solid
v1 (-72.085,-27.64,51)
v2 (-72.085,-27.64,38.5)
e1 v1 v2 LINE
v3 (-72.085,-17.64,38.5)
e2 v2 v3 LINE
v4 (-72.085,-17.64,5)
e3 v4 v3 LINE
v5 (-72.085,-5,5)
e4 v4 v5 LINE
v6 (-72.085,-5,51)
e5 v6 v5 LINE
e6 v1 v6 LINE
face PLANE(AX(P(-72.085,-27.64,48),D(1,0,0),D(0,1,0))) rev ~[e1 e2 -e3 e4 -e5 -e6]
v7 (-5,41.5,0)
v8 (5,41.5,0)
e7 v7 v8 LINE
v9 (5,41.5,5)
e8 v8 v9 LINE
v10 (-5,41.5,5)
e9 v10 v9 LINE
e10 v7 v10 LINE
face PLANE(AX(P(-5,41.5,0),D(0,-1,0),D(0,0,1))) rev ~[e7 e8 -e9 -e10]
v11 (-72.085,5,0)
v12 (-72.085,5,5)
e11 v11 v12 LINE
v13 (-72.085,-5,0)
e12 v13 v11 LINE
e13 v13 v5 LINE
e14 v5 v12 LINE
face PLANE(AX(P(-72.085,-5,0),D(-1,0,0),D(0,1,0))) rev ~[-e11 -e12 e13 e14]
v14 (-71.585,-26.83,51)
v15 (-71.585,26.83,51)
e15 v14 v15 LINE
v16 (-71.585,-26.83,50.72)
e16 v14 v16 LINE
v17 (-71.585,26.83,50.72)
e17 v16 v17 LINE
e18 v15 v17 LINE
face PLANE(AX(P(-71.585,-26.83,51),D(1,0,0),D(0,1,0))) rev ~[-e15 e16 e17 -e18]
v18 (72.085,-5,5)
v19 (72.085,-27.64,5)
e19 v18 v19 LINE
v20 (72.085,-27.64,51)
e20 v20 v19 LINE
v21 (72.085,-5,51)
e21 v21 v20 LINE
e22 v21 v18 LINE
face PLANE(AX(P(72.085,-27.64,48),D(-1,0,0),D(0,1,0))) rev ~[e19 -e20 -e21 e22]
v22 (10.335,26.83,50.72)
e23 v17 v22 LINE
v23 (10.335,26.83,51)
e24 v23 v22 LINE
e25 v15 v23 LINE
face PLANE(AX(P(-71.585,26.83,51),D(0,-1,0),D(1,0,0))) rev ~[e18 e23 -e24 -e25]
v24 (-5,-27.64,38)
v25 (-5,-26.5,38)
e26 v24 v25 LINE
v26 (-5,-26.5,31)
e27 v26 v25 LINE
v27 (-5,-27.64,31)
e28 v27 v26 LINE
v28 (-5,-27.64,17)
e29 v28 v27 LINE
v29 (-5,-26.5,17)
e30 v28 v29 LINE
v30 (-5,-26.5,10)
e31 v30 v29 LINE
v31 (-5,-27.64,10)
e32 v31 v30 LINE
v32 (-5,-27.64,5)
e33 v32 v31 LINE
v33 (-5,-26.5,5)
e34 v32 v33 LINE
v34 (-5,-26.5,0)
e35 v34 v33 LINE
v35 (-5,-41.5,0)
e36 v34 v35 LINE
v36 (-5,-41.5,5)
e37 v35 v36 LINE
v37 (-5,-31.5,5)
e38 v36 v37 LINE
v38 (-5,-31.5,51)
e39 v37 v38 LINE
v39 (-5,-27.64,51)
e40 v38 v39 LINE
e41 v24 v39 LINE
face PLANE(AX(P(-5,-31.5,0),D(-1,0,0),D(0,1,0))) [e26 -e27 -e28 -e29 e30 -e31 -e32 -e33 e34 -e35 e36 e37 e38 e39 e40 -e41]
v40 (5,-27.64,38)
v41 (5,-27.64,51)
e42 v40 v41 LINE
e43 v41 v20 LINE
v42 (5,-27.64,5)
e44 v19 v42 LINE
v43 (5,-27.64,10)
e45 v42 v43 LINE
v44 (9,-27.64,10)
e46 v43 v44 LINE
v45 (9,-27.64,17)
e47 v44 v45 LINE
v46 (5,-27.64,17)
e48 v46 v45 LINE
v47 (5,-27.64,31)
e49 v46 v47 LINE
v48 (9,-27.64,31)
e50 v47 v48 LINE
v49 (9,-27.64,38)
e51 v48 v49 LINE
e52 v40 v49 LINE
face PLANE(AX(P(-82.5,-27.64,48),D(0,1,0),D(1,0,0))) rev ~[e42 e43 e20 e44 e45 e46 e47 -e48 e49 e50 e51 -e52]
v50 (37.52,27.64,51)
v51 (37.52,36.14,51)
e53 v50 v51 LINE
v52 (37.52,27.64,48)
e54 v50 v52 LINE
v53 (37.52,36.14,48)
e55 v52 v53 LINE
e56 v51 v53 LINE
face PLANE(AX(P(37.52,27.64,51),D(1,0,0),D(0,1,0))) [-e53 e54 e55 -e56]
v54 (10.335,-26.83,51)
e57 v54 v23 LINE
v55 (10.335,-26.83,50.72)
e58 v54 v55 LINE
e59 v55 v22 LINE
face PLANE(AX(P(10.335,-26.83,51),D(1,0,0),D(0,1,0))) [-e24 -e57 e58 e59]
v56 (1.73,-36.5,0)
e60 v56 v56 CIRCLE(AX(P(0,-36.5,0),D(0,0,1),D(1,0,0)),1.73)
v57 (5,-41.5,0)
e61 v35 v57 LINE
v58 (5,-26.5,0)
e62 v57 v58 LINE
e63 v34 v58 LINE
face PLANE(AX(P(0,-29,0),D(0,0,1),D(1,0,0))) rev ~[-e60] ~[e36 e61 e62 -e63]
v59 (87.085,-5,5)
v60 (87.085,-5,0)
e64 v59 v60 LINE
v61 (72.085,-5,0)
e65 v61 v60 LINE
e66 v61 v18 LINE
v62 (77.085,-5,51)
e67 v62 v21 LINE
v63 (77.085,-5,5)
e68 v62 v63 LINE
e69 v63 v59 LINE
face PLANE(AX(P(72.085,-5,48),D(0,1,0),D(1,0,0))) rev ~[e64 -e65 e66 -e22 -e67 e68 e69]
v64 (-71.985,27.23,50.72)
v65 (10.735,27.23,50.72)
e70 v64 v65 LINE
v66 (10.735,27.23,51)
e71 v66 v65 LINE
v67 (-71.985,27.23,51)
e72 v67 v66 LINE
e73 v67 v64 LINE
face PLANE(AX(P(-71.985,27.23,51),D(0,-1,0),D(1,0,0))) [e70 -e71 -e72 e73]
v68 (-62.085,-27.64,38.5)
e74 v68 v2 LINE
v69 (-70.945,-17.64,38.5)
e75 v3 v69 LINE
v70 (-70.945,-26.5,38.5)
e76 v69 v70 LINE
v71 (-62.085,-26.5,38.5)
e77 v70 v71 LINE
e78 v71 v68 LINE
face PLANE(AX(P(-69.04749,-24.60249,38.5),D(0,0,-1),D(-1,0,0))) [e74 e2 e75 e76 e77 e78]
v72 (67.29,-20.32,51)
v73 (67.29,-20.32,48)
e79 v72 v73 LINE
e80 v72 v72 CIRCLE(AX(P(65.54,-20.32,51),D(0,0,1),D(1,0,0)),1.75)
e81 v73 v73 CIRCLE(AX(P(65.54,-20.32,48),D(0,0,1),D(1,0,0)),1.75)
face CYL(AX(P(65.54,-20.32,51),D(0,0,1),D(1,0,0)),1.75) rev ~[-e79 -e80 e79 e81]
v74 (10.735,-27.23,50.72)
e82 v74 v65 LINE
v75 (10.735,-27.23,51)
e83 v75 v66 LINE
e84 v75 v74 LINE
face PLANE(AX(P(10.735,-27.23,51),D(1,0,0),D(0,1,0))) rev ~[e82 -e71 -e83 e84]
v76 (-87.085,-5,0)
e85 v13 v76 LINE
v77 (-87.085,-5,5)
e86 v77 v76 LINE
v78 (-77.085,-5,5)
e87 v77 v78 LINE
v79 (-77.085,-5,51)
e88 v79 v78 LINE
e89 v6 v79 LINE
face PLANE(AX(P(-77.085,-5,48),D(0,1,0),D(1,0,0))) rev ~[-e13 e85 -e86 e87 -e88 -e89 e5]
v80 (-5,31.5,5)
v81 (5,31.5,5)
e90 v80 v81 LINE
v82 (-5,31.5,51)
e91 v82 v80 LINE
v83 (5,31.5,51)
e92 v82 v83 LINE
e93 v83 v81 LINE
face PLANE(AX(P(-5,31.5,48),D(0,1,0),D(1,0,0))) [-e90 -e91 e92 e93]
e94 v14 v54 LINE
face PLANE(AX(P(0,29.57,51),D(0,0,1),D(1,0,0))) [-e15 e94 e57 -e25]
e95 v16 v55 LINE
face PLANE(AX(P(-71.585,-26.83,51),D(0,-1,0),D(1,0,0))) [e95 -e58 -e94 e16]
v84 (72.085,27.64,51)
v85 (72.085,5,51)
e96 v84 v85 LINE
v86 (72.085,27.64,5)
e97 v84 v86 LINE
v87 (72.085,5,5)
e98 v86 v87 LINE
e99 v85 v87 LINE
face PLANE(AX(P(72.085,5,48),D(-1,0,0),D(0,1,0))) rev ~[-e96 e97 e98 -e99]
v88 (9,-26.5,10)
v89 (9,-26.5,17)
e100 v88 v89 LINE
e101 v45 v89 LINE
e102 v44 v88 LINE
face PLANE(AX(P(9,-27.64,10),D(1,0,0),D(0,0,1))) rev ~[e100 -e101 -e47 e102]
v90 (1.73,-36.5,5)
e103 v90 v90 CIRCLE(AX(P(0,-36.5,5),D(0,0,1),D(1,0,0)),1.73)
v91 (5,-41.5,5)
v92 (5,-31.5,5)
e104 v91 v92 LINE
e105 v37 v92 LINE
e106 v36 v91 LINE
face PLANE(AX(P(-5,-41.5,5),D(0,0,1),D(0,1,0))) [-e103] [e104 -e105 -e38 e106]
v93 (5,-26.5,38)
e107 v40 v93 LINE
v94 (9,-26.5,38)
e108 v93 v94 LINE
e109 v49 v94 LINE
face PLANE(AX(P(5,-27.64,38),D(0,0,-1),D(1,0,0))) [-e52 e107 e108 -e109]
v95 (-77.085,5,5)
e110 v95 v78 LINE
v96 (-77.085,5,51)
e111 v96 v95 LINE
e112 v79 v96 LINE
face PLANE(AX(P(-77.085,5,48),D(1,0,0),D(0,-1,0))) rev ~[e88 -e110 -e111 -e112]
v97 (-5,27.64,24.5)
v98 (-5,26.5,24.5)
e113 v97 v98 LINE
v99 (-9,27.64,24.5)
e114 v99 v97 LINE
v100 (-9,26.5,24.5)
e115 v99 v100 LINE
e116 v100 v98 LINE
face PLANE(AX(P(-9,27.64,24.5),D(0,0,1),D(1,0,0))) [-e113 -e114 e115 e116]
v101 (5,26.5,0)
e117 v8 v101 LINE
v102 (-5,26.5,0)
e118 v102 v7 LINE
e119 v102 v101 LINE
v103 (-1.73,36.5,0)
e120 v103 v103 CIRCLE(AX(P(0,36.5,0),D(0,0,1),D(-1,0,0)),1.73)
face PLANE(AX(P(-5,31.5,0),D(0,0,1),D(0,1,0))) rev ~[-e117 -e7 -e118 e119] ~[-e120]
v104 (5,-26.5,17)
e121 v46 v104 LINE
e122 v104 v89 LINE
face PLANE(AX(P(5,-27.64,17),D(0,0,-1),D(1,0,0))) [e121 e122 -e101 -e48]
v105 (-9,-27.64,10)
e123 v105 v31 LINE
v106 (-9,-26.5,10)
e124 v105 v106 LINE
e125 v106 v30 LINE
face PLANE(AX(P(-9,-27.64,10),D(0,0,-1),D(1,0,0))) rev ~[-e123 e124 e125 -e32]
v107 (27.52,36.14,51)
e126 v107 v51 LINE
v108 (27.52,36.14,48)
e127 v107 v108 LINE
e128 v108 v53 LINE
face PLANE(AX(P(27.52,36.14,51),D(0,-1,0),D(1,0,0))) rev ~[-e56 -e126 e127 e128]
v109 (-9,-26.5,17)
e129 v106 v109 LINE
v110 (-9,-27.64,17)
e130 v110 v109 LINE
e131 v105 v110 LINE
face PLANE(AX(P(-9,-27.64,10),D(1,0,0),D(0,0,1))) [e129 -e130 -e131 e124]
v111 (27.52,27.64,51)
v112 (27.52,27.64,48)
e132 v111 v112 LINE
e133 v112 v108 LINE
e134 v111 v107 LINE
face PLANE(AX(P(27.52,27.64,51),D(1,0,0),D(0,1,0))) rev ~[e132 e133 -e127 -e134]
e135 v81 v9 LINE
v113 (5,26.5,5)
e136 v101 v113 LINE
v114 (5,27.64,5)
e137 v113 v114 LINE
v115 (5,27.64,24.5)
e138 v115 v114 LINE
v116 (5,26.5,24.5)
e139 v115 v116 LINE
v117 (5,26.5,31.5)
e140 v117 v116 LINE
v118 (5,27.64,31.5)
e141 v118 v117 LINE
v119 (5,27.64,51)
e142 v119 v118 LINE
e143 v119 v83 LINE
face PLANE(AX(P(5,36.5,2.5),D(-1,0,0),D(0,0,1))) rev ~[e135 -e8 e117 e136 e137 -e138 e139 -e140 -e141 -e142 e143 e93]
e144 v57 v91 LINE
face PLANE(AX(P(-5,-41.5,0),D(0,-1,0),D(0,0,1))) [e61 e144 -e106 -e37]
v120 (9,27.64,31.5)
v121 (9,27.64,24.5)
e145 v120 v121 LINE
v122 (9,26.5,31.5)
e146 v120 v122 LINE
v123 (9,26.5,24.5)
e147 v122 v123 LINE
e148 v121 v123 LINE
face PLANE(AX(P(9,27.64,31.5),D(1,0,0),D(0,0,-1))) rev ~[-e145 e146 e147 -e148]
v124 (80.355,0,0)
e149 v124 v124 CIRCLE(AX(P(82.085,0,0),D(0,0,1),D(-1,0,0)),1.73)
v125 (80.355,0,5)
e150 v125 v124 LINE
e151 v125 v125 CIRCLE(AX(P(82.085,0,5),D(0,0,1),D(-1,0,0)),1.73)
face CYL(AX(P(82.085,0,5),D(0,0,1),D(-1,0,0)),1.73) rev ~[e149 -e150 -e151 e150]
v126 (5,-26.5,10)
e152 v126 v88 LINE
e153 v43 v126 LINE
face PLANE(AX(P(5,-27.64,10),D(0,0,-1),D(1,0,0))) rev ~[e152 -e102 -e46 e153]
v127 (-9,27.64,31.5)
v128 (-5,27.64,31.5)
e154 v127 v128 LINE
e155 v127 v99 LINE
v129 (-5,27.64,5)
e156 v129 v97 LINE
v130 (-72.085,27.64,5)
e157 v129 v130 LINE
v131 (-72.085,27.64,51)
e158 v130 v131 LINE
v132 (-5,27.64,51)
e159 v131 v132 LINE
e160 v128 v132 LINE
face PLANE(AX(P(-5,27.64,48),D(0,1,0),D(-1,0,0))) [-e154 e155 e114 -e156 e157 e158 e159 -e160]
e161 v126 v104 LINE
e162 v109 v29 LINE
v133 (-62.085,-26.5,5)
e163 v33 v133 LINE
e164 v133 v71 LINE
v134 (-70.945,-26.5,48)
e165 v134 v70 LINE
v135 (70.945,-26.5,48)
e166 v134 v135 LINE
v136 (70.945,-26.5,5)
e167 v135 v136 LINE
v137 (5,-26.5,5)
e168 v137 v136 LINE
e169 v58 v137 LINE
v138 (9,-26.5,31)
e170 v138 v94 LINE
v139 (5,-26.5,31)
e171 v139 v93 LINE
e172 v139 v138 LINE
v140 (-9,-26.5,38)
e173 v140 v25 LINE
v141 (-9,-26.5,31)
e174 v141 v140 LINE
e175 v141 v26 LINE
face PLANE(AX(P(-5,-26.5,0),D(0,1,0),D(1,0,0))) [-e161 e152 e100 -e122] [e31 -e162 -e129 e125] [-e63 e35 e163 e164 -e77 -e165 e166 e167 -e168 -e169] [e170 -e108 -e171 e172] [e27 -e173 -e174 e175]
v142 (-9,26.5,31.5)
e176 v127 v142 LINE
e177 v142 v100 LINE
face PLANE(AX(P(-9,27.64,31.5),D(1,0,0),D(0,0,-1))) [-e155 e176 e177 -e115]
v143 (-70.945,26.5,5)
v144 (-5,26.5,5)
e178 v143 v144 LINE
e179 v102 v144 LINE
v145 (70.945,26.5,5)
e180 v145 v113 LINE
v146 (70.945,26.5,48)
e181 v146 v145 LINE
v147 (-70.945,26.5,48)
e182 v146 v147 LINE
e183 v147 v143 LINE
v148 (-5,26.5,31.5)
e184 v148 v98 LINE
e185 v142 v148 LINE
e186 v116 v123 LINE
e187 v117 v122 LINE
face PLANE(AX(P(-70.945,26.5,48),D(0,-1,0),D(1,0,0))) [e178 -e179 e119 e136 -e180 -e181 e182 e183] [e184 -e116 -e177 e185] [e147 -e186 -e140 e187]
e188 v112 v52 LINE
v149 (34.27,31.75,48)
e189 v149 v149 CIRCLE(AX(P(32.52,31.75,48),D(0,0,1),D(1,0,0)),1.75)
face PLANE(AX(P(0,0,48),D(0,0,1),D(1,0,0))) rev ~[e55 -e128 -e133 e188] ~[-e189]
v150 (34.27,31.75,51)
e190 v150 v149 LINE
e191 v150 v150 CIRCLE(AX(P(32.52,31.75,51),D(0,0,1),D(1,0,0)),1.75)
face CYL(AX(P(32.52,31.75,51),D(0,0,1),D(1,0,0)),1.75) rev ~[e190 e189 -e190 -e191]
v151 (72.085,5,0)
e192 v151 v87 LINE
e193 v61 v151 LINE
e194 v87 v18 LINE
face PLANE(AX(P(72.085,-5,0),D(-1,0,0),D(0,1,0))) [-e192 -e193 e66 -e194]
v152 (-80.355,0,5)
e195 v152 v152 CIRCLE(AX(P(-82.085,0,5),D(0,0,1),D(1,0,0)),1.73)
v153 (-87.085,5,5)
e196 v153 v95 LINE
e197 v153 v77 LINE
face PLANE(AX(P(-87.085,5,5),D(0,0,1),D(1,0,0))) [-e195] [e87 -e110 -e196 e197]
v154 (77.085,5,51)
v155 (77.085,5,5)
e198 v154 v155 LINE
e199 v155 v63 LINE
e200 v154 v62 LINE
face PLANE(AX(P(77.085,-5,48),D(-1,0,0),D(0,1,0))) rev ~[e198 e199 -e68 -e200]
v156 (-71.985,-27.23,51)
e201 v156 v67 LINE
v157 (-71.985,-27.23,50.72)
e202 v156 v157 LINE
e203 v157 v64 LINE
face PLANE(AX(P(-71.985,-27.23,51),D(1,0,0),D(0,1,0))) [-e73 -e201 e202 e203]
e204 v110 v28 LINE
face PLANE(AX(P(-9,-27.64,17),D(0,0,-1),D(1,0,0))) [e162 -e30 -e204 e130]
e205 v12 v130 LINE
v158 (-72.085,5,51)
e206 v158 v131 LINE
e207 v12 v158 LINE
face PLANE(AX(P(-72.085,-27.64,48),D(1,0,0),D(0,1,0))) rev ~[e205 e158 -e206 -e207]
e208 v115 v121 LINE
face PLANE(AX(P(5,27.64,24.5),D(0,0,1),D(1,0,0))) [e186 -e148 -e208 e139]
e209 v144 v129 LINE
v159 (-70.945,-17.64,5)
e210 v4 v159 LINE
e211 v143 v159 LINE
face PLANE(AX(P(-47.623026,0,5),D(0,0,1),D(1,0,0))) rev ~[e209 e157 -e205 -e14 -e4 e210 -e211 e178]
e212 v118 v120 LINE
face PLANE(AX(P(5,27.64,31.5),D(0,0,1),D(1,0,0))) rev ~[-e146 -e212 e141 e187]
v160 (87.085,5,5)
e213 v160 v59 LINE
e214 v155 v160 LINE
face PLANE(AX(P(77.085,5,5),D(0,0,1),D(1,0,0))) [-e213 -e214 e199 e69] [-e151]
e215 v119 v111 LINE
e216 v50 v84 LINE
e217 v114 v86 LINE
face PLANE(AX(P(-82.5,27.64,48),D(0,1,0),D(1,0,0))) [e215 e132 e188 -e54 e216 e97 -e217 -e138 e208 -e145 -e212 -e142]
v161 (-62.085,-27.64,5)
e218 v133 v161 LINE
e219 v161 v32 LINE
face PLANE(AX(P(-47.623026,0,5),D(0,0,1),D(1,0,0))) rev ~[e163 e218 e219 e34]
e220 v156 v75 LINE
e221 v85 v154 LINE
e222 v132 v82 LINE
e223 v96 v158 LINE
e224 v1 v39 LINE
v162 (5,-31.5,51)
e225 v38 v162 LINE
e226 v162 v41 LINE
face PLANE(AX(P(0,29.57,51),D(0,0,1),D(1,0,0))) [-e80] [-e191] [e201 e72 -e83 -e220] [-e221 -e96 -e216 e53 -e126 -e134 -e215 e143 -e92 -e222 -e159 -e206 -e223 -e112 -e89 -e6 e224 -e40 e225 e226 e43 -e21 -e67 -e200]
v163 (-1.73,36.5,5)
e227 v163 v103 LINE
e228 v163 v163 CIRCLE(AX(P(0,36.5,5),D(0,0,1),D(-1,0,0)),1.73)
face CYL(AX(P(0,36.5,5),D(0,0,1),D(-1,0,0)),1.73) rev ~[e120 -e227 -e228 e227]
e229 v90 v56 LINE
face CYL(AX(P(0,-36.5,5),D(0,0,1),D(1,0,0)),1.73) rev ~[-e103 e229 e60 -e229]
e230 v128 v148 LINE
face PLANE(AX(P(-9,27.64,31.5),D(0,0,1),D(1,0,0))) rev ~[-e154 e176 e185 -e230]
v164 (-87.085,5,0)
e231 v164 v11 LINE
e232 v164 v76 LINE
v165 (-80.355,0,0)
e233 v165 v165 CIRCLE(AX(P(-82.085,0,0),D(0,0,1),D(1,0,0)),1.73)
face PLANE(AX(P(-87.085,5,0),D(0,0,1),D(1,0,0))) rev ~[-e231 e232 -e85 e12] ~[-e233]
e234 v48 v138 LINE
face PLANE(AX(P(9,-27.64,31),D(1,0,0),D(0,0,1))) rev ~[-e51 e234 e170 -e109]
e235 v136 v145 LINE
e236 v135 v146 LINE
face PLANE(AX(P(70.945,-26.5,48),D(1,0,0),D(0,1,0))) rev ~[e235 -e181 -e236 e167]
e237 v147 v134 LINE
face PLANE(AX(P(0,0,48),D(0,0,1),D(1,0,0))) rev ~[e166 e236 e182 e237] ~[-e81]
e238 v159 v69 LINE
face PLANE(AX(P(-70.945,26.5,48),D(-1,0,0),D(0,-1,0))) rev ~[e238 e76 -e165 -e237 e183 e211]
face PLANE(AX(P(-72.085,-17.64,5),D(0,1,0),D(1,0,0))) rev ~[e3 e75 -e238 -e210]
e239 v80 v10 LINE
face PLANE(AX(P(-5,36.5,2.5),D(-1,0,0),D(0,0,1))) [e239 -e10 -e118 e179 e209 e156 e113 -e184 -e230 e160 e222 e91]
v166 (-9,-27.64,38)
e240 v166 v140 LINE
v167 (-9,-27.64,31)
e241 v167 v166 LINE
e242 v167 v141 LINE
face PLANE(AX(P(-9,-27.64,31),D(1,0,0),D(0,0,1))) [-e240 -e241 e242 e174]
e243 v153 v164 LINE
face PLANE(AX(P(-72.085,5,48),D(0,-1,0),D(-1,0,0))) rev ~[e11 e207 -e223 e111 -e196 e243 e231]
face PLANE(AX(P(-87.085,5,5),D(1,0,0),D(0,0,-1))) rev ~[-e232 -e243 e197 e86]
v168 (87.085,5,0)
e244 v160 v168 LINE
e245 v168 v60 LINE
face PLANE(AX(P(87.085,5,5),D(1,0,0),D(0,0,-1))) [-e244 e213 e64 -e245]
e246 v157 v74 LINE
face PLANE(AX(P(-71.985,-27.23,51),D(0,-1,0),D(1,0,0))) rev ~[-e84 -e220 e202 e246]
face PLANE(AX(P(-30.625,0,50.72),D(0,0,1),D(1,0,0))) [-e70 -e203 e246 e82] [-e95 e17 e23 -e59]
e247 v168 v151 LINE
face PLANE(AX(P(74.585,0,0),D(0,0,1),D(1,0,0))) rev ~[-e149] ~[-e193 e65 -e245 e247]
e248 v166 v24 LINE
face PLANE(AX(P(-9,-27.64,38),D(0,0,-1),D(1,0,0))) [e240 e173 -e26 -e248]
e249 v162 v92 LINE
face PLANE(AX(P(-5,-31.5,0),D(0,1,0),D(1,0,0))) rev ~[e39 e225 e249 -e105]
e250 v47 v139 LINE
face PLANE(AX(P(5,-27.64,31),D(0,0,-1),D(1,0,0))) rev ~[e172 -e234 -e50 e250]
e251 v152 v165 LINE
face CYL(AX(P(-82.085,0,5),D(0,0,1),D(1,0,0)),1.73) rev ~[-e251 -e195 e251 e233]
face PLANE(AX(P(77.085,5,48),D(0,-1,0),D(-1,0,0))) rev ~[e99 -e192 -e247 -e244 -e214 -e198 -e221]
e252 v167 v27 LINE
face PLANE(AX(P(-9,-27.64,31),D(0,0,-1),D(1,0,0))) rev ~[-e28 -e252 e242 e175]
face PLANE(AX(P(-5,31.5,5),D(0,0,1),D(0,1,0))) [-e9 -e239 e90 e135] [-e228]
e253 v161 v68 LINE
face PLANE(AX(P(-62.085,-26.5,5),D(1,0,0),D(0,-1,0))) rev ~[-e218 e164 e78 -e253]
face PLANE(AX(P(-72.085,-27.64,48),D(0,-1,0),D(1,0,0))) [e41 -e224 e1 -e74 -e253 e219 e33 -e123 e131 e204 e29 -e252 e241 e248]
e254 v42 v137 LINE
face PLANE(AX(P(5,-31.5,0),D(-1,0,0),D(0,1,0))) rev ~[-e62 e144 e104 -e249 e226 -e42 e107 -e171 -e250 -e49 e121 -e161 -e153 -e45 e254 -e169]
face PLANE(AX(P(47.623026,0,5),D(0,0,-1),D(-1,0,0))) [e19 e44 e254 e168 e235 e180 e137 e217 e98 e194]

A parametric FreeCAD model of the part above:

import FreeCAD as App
import Part
import Sketcher

doc = App.newDocument("Part")
body = doc.addObject("PartDesign::Body", "Body")

# Sketch on XY plane
sketch1 = body.newObject("Sketcher::SketchObject", "Sketch")
sketch1.AttachmentSupport = (doc.getObject("XY_Plane"), [""])
sketch1.MapMode = "FlatFace"
sketch1.addGeometry([
    Part.LineSegment(App.Vector(-77, 5, 0), App.Vector(-77, -5, 0)),
    Part.LineSegment(App.Vector(-77, -5, 0), App.Vector(-72, -5, 0)),
    Part.LineSegment(App.Vector(-72, -5, 0), App.Vector(-72, 5, 0)),
    Part.LineSegment(App.Vector(-72, 5, 0), App.Vector(-77, 5, 0)),
], False)
sketch1.addConstraint([
    Sketcher.Constraint("Coincident", 0, 2, 1, 1),
    Sketcher.Constraint("Coincident", 1, 2, 2, 1),
    Sketcher.Constraint("Coincident", 2, 2, 3, 1),
    Sketcher.Constraint("Coincident", 3, 2, 0, 1),
    Sketcher.Constraint("Vertical", 0),
    Sketcher.Constraint("Horizontal", 1),
    Sketcher.Constraint("Vertical", 2),
    Sketcher.Constraint("Horizontal", 3),
    Sketcher.Constraint("DistanceX", 1, 1, 1, 2, 5.0),
    Sketcher.Constraint("DistanceY", 0, 2, 0, 1, 10.0),
    Sketcher.Constraint("DistanceY", 0, 2, -1, 1, 5.0),
    Sketcher.Constraint("DistanceX", 0, 2, -1, 1, 77.085),
])
pad1 = body.newObject("PartDesign::Pad", "Pad")
pad1.Profile = sketch1
pad1.Length = 48
body2 = doc.addObject("PartDesign::Body", "Body001")

# Sketch on XY plane
sketch2 = body2.newObject("Sketcher::SketchObject", "Sketch001")
sketch2.AttachmentSupport = (doc.getObject("XY_Plane001"), [""])
sketch2.MapMode = "FlatFace"
sketch2.addGeometry([
    Part.LineSegment(App.Vector(-5, 32, 0), App.Vector(-5, 26, 0)),
    Part.LineSegment(App.Vector(-5, 26, 0), App.Vector(5, 26, 0)),
    Part.LineSegment(App.Vector(5, 26, 0), App.Vector(5, 32, 0)),
    Part.LineSegment(App.Vector(5, 32, 0), App.Vector(-5, 32, 0)),
], False)
sketch2.addConstraint([
    Sketcher.Constraint("Coincident", 0, 2, 1, 1),
    Sketcher.Constraint("Coincident", 1, 2, 2, 1),
    Sketcher.Constraint("Coincident", 2, 2, 3, 1),
    Sketcher.Constraint("Coincident", 3, 2, 0, 1),
    Sketcher.Constraint("Vertical", 0),
    Sketcher.Constraint("Horizontal", 1),
    Sketcher.Constraint("Vertical", 2),
    Sketcher.Constraint("Horizontal", 3),
    Sketcher.Constraint("DistanceX", 1, 1, 1, 2, 10.0),
    Sketcher.Constraint("DistanceY", 0, 2, 0, 1, 5.0),
    Sketcher.Constraint("DistanceX", 0, 2, -1, 1, 5.0),
    Sketcher.Constraint("DistanceY", -1, 1, 0, 2, 26.5),
])
pad2 = body2.newObject("PartDesign::Pad", "Pad001")
pad2.Profile = sketch2
pad2.Length = 48
body3 = doc.addObject("PartDesign::Body", "Body002")

# Sketch on XY plane
sketch3 = body3.newObject("Sketcher::SketchObject", "Sketch002")
sketch3.AttachmentSupport = (doc.getObject("XY_Plane002"), [""])
sketch3.MapMode = "FlatFace"
sketch3.addGeometry([
    Part.LineSegment(App.Vector(72, 5, 0), App.Vector(72, -5, 0)),
    Part.LineSegment(App.Vector(72, -5, 0), App.Vector(77, -5, 0)),
    Part.LineSegment(App.Vector(77, -5, 0), App.Vector(77, 5, 0)),
    Part.LineSegment(App.Vector(77, 5, 0), App.Vector(72, 5, 0)),
], False)
sketch3.addConstraint([
    Sketcher.Constraint("Coincident", 0, 2, 1, 1),
    Sketcher.Constraint("Coincident", 1, 2, 2, 1),
    Sketcher.Constraint("Coincident", 2, 2, 3, 1),
    Sketcher.Constraint("Coincident", 3, 2, 0, 1),
    Sketcher.Constraint("Vertical", 0),
    Sketcher.Constraint("Horizontal", 1),
    Sketcher.Constraint("Vertical", 2),
    Sketcher.Constraint("Horizontal", 3),
    Sketcher.Constraint("DistanceX", 1, 1, 1, 2, 5.0),
    Sketcher.Constraint("DistanceY", 0, 2, 0, 1, 10.0),
    Sketcher.Constraint("DistanceY", 0, 2, -1, 1, 5.0),
    Sketcher.Constraint("DistanceX", -1, 1, 0, 2, 72.085),
])
pad3 = body3.newObject("PartDesign::Pad", "Pad002")
pad3.Profile = sketch3
pad3.Length = 48
body4 = doc.addObject("PartDesign::Body", "Body003")

# Sketch on XY plane
sketch4 = body4.newObject("Sketcher::SketchObject", "Sketch003")
sketch4.AttachmentSupport = (doc.getObject("XY_Plane003"), [""])
sketch4.MapMode = "FlatFace"
sketch4.addGeometry([
    Part.LineSegment(App.Vector(-5, -26, 0), App.Vector(-5, -32, 0)),
    Part.LineSegment(App.Vector(-5, -32, 0), App.Vector(5, -32, 0)),
    Part.LineSegment(App.Vector(5, -32, 0), App.Vector(5, -26, 0)),
    Part.LineSegment(App.Vector(5, -26, 0), App.Vector(-5, -26, 0)),
], False)
sketch4.addConstraint([
    Sketcher.Constraint("Coincident", 0, 2, 1, 1),
    Sketcher.Constraint("Coincident", 1, 2, 2, 1),
    Sketcher.Constraint("Coincident", 2, 2, 3, 1),
    Sketcher.Constraint("Coincident", 3, 2, 0, 1),
    Sketcher.Constraint("Vertical", 0),
    Sketcher.Constraint("Horizontal", 1),
    Sketcher.Constraint("Vertical", 2),
    Sketcher.Constraint("Horizontal", 3),
    Sketcher.Constraint("DistanceX", 1, 1, 1, 2, 10.0),
    Sketcher.Constraint("DistanceY", 0, 2, 0, 1, 5.0),
    Sketcher.Constraint("DistanceX", 0, 2, -1, 1, 5.0),
    Sketcher.Constraint("DistanceY", 0, 2, -1, 1, 31.5),
])
pad4 = body4.newObject("PartDesign::Pad", "Pad003")
pad4.Profile = sketch4
pad4.Length = 48
body.AllowCompound = True
doc.recompute()

boolean = body.newObject("PartDesign::Boolean", "Boolean")
boolean.Type = "Fuse"
boolean.addObjects([body2])
doc.recompute()

boolean2 = body.newObject("PartDesign::Boolean", "Boolean001")
boolean2.Type = "Fuse"
boolean2.addObjects([body3])
doc.recompute()

boolean3 = body.newObject("PartDesign::Boolean", "Boolean002")
boolean3.Type = "Fuse"
boolean3.addObjects([body4])

# Sketch on XY plane
sketch5 = body.newObject("Sketcher::SketchObject", "Sketch004")
sketch5.AttachmentSupport = (doc.getObject("XY_Plane"), [""])
sketch5.MapMode = "FlatFace"
sketch5.AttachmentOffset = App.Placement(App.Vector(0, 0, 48), App.Rotation())
sketch5.addGeometry([
    Part.LineSegment(App.Vector(-82, 28, 0), App.Vector(-82, -28, 0)),
    Part.LineSegment(App.Vector(-82, -28, 0), App.Vector(82, -28, 0)),
    Part.LineSegment(App.Vector(82, -28, 0), App.Vector(82, 28, 0)),
    Part.LineSegment(App.Vector(82, 28, 0), App.Vector(-82, 28, 0)),
], False)
sketch5.addConstraint([
    Sketcher.Constraint("Coincident", 0, 2, 1, 1),
    Sketcher.Constraint("Coincident", 1, 2, 2, 1),
    Sketcher.Constraint("Coincident", 2, 2, 3, 1),
    Sketcher.Constraint("Coincident", 3, 2, 0, 1),
    Sketcher.Constraint("Vertical", 0),
    Sketcher.Constraint("Horizontal", 1),
    Sketcher.Constraint("Vertical", 2),
    Sketcher.Constraint("Horizontal", 3),
    Sketcher.Constraint("Symmetric", 0, 2, 2, 2, -1, 1),
    Sketcher.Constraint("DistanceX", 1, 1, 1, 2, 165.0),
    Sketcher.Constraint("DistanceY", 0, 2, 0, 1, 55.28),
])
pad5 = body.newObject("PartDesign::Pad", "Pad004")
pad5.Profile = sketch5
pad5.Length = 3

# Sketch on XY plane
sketch6 = body.newObject("Sketcher::SketchObject", "Sketch005")
sketch6.AttachmentSupport = (doc.getObject("XY_Plane"), [""])
sketch6.MapMode = "FlatFace"
sketch6.AttachmentOffset = App.Placement(App.Vector(0, 0, 48), App.Rotation())
sketch6.addGeometry([
    Part.LineSegment(App.Vector(-5, 31.5, 0), App.Vector(-5, 27.6, 0)),  # 0
    Part.LineSegment(App.Vector(-5, 27.6, 0), App.Vector(5, 27.6, 0)),  # 1
    Part.LineSegment(App.Vector(5, 27.6, 0), App.Vector(5, 31.5, 0)),  # 2
    Part.LineSegment(App.Vector(5, 31.5, 0), App.Vector(-5, 31.5, 0)),  # 3
    Part.LineSegment(App.Vector(-5, -27.6, 0), App.Vector(-5, -31.5, 0)),  # 4
    Part.LineSegment(App.Vector(-5, -31.5, 0), App.Vector(5, -31.5, 0)),  # 5
    Part.LineSegment(App.Vector(5, -31.5, 0), App.Vector(5, -27.6, 0)),  # 6
    Part.LineSegment(App.Vector(5, -27.6, 0), App.Vector(-5, -27.6, 0)),  # 7
], False)
sketch6.addConstraint([
    Sketcher.Constraint("Coincident", 0, 2, 1, 1),
    Sketcher.Constraint("Coincident", 1, 2, 2, 1),
    Sketcher.Constraint("Coincident", 2, 2, 3, 1),
    Sketcher.Constraint("Coincident", 3, 2, 0, 1),
    Sketcher.Constraint("Coincident", 4, 2, 5, 1),
    Sketcher.Constraint("Coincident", 5, 2, 6, 1),
    Sketcher.Constraint("Coincident", 6, 2, 7, 1),
    Sketcher.Constraint("Coincident", 7, 2, 4, 1),
    Sketcher.Constraint("Vertical", 0),
    Sketcher.Constraint("Horizontal", 1),
    Sketcher.Constraint("Vertical", 2),
    Sketcher.Constraint("Horizontal", 3),
    Sketcher.Constraint("Vertical", 4),
    Sketcher.Constraint("Horizontal", 5),
    Sketcher.Constraint("Vertical", 6),
    Sketcher.Constraint("Horizontal", 7),
    Sketcher.Constraint("Symmetric", 2, 2, 4, 2, -1, 1),
    Sketcher.Constraint("Symmetric", 0, 2, 6, 2, -1, 1),
    Sketcher.Constraint("Vertical", 3, 2, 4, 2),
    Sketcher.Constraint("DistanceX", 1, 1, 1, 2, 10.0),
    Sketcher.Constraint("DistanceY", 4, 2, 3, 2, 63.0),
    Sketcher.Constraint("DistanceY", 0, 2, 0, 1, 3.86),
])
pad6 = body.newObject("PartDesign::Pad", "Pad005")
pad6.Profile = sketch6
pad6.Length = 3

# Sketch on XZ plane
sketch7 = body.newObject("Sketcher::SketchObject", "Sketch006")
sketch7.AttachmentSupport = (doc.getObject("XZ_Plane"), [""])
sketch7.MapMode = "FlatFace"
sketch7.AttachmentOffset = App.Placement(App.Vector(0, 0, -5), App.Rotation())
sketch7.addGeometry([
    Part.LineSegment(App.Vector(-87, 0, 0), App.Vector(-87, 5, 0)),  # 0
    Part.LineSegment(App.Vector(-87, 5, 0), App.Vector(-77, 5, 0)),  # 1
    Part.LineSegment(App.Vector(-77, 5, 0), App.Vector(-77, 0, 0)),  # 2
    Part.LineSegment(App.Vector(-77, 0, 0), App.Vector(-87, 0, 0)),  # 3
    Part.LineSegment(App.Vector(77, 0, 0), App.Vector(77, 5, 0)),  # 4
    Part.LineSegment(App.Vector(77, 5, 0), App.Vector(87, 5, 0)),  # 5
    Part.LineSegment(App.Vector(87, 5, 0), App.Vector(87, 0, 0)),  # 6
    Part.LineSegment(App.Vector(87, 0, 0), App.Vector(77, 0, 0)),  # 7
], False)
sketch7.addConstraint([
    Sketcher.Constraint("Coincident", 0, 2, 1, 1),
    Sketcher.Constraint("Coincident", 1, 2, 2, 1),
    Sketcher.Constraint("Coincident", 2, 2, 3, 1),
    Sketcher.Constraint("Coincident", 3, 2, 0, 1),
    Sketcher.Constraint("Coincident", 4, 2, 5, 1),
    Sketcher.Constraint("Coincident", 5, 2, 6, 1),
    Sketcher.Constraint("Coincident", 6, 2, 7, 1),
    Sketcher.Constraint("Coincident", 7, 2, 4, 1),
    Sketcher.Constraint("Vertical", 0),
    Sketcher.Constraint("Horizontal", 1),
    Sketcher.Constraint("Vertical", 2),
    Sketcher.Constraint("Horizontal", 3),
    Sketcher.Constraint("Vertical", 4),
    Sketcher.Constraint("Horizontal", 5),
    Sketcher.Constraint("Vertical", 6),
    Sketcher.Constraint("Horizontal", 7),
    Sketcher.Constraint("Symmetric", 3, 2, 6, 2, -1, 1),
    Sketcher.Constraint("Symmetric", 1, 2, 4, 2, -2),
    Sketcher.Constraint("PointOnObject", 2, 2, -1),
    Sketcher.Constraint("DistanceX", 1, 1, 1, 2, 10.0),
    Sketcher.Constraint("DistanceY", 0, 1, 0, 2, 5.0),
    Sketcher.Constraint("DistanceX", 1, 2, 4, 2, 154.17),
])
pad7 = body.newObject("PartDesign::Pad", "Pad006")
pad7.Profile = sketch7
pad7.Length = 10

# Sketch on YZ plane
sketch8 = body.newObject("Sketcher::SketchObject", "Sketch007")
sketch8.AttachmentSupport = (doc.getObject("YZ_Plane"), [""])
sketch8.MapMode = "FlatFace"
sketch8.AttachmentOffset = App.Placement(App.Vector(0, 0, -5), App.Rotation())
sketch8.addGeometry([
    Part.LineSegment(App.Vector(42, 0, 0), App.Vector(32, 0, 0)),  # 0
    Part.LineSegment(App.Vector(32, 0, 0), App.Vector(32, 5, 0)),  # 1
    Part.LineSegment(App.Vector(32, 5, 0), App.Vector(42, 5, 0)),  # 2
    Part.LineSegment(App.Vector(42, 5, 0), App.Vector(42, 0, 0)),  # 3
    Part.LineSegment(App.Vector(-32, 0, 0), App.Vector(-42, 0, 0)),  # 4
    Part.LineSegment(App.Vector(-42, 0, 0), App.Vector(-42, 5, 0)),  # 5
    Part.LineSegment(App.Vector(-42, 5, 0), App.Vector(-32, 5, 0)),  # 6
    Part.LineSegment(App.Vector(-32, 5, 0), App.Vector(-32, 0, 0)),  # 7
], False)
sketch8.addConstraint([
    Sketcher.Constraint("Coincident", 0, 2, 1, 1),
    Sketcher.Constraint("Coincident", 1, 2, 2, 1),
    Sketcher.Constraint("Coincident", 2, 2, 3, 1),
    Sketcher.Constraint("Coincident", 3, 2, 0, 1),
    Sketcher.Constraint("Coincident", 4, 2, 5, 1),
    Sketcher.Constraint("Coincident", 5, 2, 6, 1),
    Sketcher.Constraint("Coincident", 6, 2, 7, 1),
    Sketcher.Constraint("Coincident", 7, 2, 4, 1),
    Sketcher.Constraint("Horizontal", 0),
    Sketcher.Constraint("Vertical", 1),
    Sketcher.Constraint("Horizontal", 2),
    Sketcher.Constraint("Vertical", 3),
    Sketcher.Constraint("Horizontal", 4),
    Sketcher.Constraint("Vertical", 5),
    Sketcher.Constraint("Horizontal", 6),
    Sketcher.Constraint("Vertical", 7),
    Sketcher.Constraint("Symmetric", 3, 2, 4, 2, -1, 1),
    Sketcher.Constraint("Symmetric", 1, 2, 6, 2, -2),
    Sketcher.Constraint("PointOnObject", 0, 2, -1),
    Sketcher.Constraint("DistanceX", 0, 2, 0, 1, 10.0),
    Sketcher.Constraint("DistanceY", 1, 1, 1, 2, 5.0),
    Sketcher.Constraint("DistanceX", 4, 2, 0, 2, 73.0),
])
pad8 = body.newObject("PartDesign::Pad", "Pad007")
pad8.Profile = sketch8
pad8.Length = 10

# Sketch on XY plane
sketch9 = body.newObject("Sketcher::SketchObject", "Sketch008")
sketch9.AttachmentSupport = (doc.getObject("XY_Plane"), [""])
sketch9.MapMode = "FlatFace"
sketch9.AttachmentOffset = App.Placement(App.Vector(0, 0, 5), App.Rotation())
sketch9.addGeometry([
    Part.Circle(App.Vector(-82.1, 0, 0), App.Vector(0, 0, 1), 1.7),
    Part.Circle(App.Vector(0, -36.5, 0), App.Vector(0, 0, 1), 1.7),
    Part.Circle(App.Vector(82.1, 0, 0), App.Vector(0, 0, 1), 1.7),
    Part.Circle(App.Vector(0, 36.5, 0), App.Vector(0, 0, 1), 1.7),
], False)
sketch9.addConstraint([
    Sketcher.Constraint("Equal", 0, 1),
    Sketcher.Constraint("Equal", 1, 2),
    Sketcher.Constraint("Equal", 2, 3),
    Sketcher.Constraint("Symmetric", 0, 3, 2, 3, -1, 1),
    Sketcher.Constraint("Symmetric", 1, 3, 3, 3, -1, 1),
    Sketcher.Constraint("PointOnObject", 0, 3, -1),
    Sketcher.Constraint("PointOnObject", 1, 3, -2),
    Sketcher.Constraint("Diameter", 0, 3.46),
    Sketcher.Constraint("DistanceY", 1, 3, 3, 3, 73.0),
    Sketcher.Constraint("DistanceX", 0, 3, 2, 3, 164.17),
])
pocket1 = body.newObject("PartDesign::Pocket", "Pocket")
pocket1.Profile = sketch9
pocket1.Type = "ThroughAll"

# Sketch on XY plane
sketch10 = body.newObject("Sketcher::SketchObject", "Sketch009")
sketch10.AttachmentSupport = (doc.getObject("XY_Plane"), [""])
sketch10.MapMode = "FlatFace"
sketch10.AttachmentOffset = App.Placement(App.Vector(0, 0, 51), App.Rotation())
sketch10.addGeometry([
    Part.LineSegment(App.Vector(27.5, 36.1, 0), App.Vector(27.5, 27.6, 0)),  # 0
    Part.LineSegment(App.Vector(27.5, 27.6, 0), App.Vector(37.5, 27.6, 0)),  # 1
    Part.LineSegment(App.Vector(37.5, 27.6, 0), App.Vector(37.5, 36.1, 0)),  # 2
    Part.LineSegment(App.Vector(37.5, 36.1, 0), App.Vector(27.5, 36.1, 0)),  # 3
    Part.LineSegment(App.Vector(68.1, -15.3, 0), App.Vector(68.1, -25.3, 0)),  # 4
    Part.LineSegment(App.Vector(68.1, -25.3, 0), App.Vector(69.9, -25.3, 0)),  # 5
    Part.LineSegment(App.Vector(69.9, -25.3, 0), App.Vector(69.9, -15.3, 0)),  # 6
    Part.LineSegment(App.Vector(69.9, -15.3, 0), App.Vector(68.1, -15.3, 0)),  # 7
], False)
sketch10.addConstraint([
    Sketcher.Constraint("Coincident", 0, 2, 1, 1),
    Sketcher.Constraint("Coincident", 1, 2, 2, 1),
    Sketcher.Constraint("Coincident", 2, 2, 3, 1),
    Sketcher.Constraint("Coincident", 3, 2, 0, 1),
    Sketcher.Constraint("Coincident", 4, 2, 5, 1),
    Sketcher.Constraint("Coincident", 5, 2, 6, 1),
    Sketcher.Constraint("Coincident", 6, 2, 7, 1),
    Sketcher.Constraint("Coincident", 7, 2, 4, 1),
    Sketcher.Constraint("Vertical", 0),
    Sketcher.Constraint("Horizontal", 1),
    Sketcher.Constraint("Vertical", 2),
    Sketcher.Constraint("Horizontal", 3),
    Sketcher.Constraint("Vertical", 4),
    Sketcher.Constraint("Horizontal", 5),
    Sketcher.Constraint("Vertical", 6),
    Sketcher.Constraint("Horizontal", 7),
    Sketcher.Constraint("Equal", 3, 4),
    Sketcher.Constraint("DistanceX", 1, 1, 1, 2, 10.0),
    Sketcher.Constraint("DistanceY", 0, 2, 0, 1, 8.5),
    Sketcher.Constraint("DistanceX", 5, 1, 5, 2, 1.85),
    Sketcher.Constraint("DistanceX", -1, 1, 0, 2, 27.52),
    Sketcher.Constraint("DistanceY", -1, 1, 0, 2, 27.64),
    Sketcher.Constraint("DistanceX", -1, 1, 4, 2, 68.08),
    Sketcher.Constraint("DistanceY", 4, 2, -1, 1, 25.32),
])
pad9 = body.newObject("PartDesign::Pad", "Pad008")
pad9.Profile = sketch10
pad9.Length = 3
pad9.Reversed = True

# Sketch on XY plane
sketch11 = body.newObject("Sketcher::SketchObject", "Sketch010")
sketch11.AttachmentSupport = (doc.getObject("XY_Plane"), [""])
sketch11.MapMode = "FlatFace"
sketch11.AttachmentOffset = App.Placement(App.Vector(0, 0, 51), App.Rotation())
sketch11.addGeometry([
    Part.Circle(App.Vector(32.5, 31.8, 0), App.Vector(0, 0, 1), 1.8),
    Part.Circle(App.Vector(65.5, -20.3, 0), App.Vector(0, 0, 1), 1.8),
], False)
sketch11.addConstraint([
    Sketcher.Constraint("Equal", 0, 1),
    Sketcher.Constraint("Diameter", 0, 3.5),
    Sketcher.Constraint("DistanceX", -1, 1, 0, 3, 32.52),
    Sketcher.Constraint("DistanceY", -1, 1, 0, 3, 31.75),
    Sketcher.Constraint("DistanceX", -1, 1, 1, 3, 65.54),
    Sketcher.Constraint("DistanceY", 1, 3, -1, 1, 20.32),
])
pocket2 = body.newObject("PartDesign::Pocket", "Pocket001")
pocket2.Profile = sketch11
pocket2.Type = "ThroughAll"

# Sketch on XY plane
sketch12 = body.newObject("Sketcher::SketchObject", "Sketch011")
sketch12.AttachmentSupport = (doc.getObject("XY_Plane"), [""])
sketch12.MapMode = "FlatFace"
sketch12.AttachmentOffset = App.Placement(App.Vector(0, 0, 51), App.Rotation())
sketch12.addGeometry([
    Part.LineSegment(App.Vector(-72, 27, 0), App.Vector(-72, -27, 0)),  # 0
    Part.LineSegment(App.Vector(-72, -27, 0), App.Vector(11, -27, 0)),  # 1
    Part.LineSegment(App.Vector(11, -27, 0), App.Vector(11, 27, 0)),  # 2
    Part.LineSegment(App.Vector(11, 27, 0), App.Vector(-72, 27, 0)),  # 3
    Part.LineSegment(App.Vector(10, -27, 0), App.Vector(-72, -27, 0)),  # 4
    Part.LineSegment(App.Vector(-72, -27, 0), App.Vector(-72, 27, 0)),  # 5
    Part.LineSegment(App.Vector(-72, 27, 0), App.Vector(10, 27, 0)),  # 6
    Part.LineSegment(App.Vector(10, 27, 0), App.Vector(10, -27, 0)),  # 7
], False)
sketch12.addConstraint([
    Sketcher.Constraint("Coincident", 0, 2, 1, 1),
    Sketcher.Constraint("Coincident", 1, 2, 2, 1),
    Sketcher.Constraint("Coincident", 2, 2, 3, 1),
    Sketcher.Constraint("Coincident", 3, 2, 0, 1),
    Sketcher.Constraint("Coincident", 4, 2, 5, 1),
    Sketcher.Constraint("Coincident", 5, 2, 6, 1),
    Sketcher.Constraint("Coincident", 6, 2, 7, 1),
    Sketcher.Constraint("Coincident", 7, 2, 4, 1),
    Sketcher.Constraint("Vertical", 0),
    Sketcher.Constraint("Horizontal", 1),
    Sketcher.Constraint("Vertical", 2),
    Sketcher.Constraint("Horizontal", 3),
    Sketcher.Constraint("Horizontal", 4),
    Sketcher.Constraint("Vertical", 5),
    Sketcher.Constraint("Horizontal", 6),
    Sketcher.Constraint("Vertical", 7),
    Sketcher.Constraint("DistanceX", 1, 1, 1, 2, 82.72),
    Sketcher.Constraint("DistanceX", 4, 2, 4, 1, 81.92),
    Sketcher.Constraint("DistanceY", 0, 2, 0, 1, 54.46),
    Sketcher.Constraint("DistanceY", 5, 1, 5, 2, 53.66),
    Sketcher.Constraint("DistanceX", 0, 2, 4, 2, 0.4),
    Sketcher.Constraint("DistanceY", 0, 2, 4, 2, 0.4),
    Sketcher.Constraint("DistanceY", 0, 2, -1, 1, 27.23),
    Sketcher.Constraint("DistanceX", 0, 2, -1, 1, 71.985),
])
pocket3 = body.newObject("PartDesign::Pocket", "Pocket002")
pocket3.Profile = sketch12
pocket3.Length = 0.28

# Sketch on XY plane
sketch13 = body.newObject("Sketcher::SketchObject", "Sketch012")
sketch13.AttachmentSupport = (doc.getObject("XY_Plane"), [""])
sketch13.MapMode = "FlatFace"
sketch13.AttachmentOffset = App.Placement(App.Vector(0, 0, 48), App.Rotation())
sketch13.addGeometry([
    Part.LineSegment(App.Vector(-82, -28, 0), App.Vector(-82, 28, 0)),  # 0
    Part.LineSegment(App.Vector(-82, 28, 0), App.Vector(-72, 28, 0)),  # 1
    Part.LineSegment(App.Vector(-72, 28, 0), App.Vector(-72, 5, 0)),  # 2
    Part.LineSegment(App.Vector(-72, 5, 0), App.Vector(-77, 5, 0)),  # 3
    Part.LineSegment(App.Vector(-77, 5, 0), App.Vector(-77, -5, 0)),  # 4
    Part.LineSegment(App.Vector(-77, -5, 0), App.Vector(-72, -5, 0)),  # 5
    Part.LineSegment(App.Vector(-72, -5, 0), App.Vector(-72, -28, 0)),  # 6
    Part.LineSegment(App.Vector(-72, -28, 0), App.Vector(-82, -28, 0)),  # 7
    Part.LineSegment(App.Vector(82, 28, 0), App.Vector(82, -28, 0)),  # 8
    Part.LineSegment(App.Vector(82, -28, 0), App.Vector(72, -28, 0)),  # 9
    Part.LineSegment(App.Vector(72, -28, 0), App.Vector(72, -5, 0)),  # 10
    Part.LineSegment(App.Vector(72, -5, 0), App.Vector(77, -5, 0)),  # 11
    Part.LineSegment(App.Vector(77, -5, 0), App.Vector(77, 5, 0)),  # 12
    Part.LineSegment(App.Vector(77, 5, 0), App.Vector(72, 5, 0)),  # 13
    Part.LineSegment(App.Vector(72, 5, 0), App.Vector(72, 28, 0)),  # 14
    Part.LineSegment(App.Vector(72, 28, 0), App.Vector(82, 28, 0)),  # 15
], False)
sketch13.addConstraint([
    Sketcher.Constraint("Coincident", 0, 2, 1, 1),
    Sketcher.Constraint("Coincident", 1, 2, 2, 1),
    Sketcher.Constraint("Coincident", 2, 2, 3, 1),
    Sketcher.Constraint("Coincident", 3, 2, 4, 1),
    Sketcher.Constraint("Coincident", 4, 2, 5, 1),
    Sketcher.Constraint("Coincident", 5, 2, 6, 1),
    Sketcher.Constraint("Coincident", 6, 2, 7, 1),
    Sketcher.Constraint("Coincident", 7, 2, 0, 1),
    Sketcher.Constraint("Coincident", 8, 2, 9, 1),
    Sketcher.Constraint("Coincident", 9, 2, 10, 1),
    Sketcher.Constraint("Coincident", 10, 2, 11, 1),
    Sketcher.Constraint("Coincident", 11, 2, 12, 1),
    Sketcher.Constraint("Coincident", 12, 2, 13, 1),
    Sketcher.Constraint("Coincident", 13, 2, 14, 1),
    Sketcher.Constraint("Coincident", 14, 2, 15, 1),
    Sketcher.Constraint("Coincident", 15, 2, 8, 1),
    Sketcher.Constraint("Vertical", 0),
    Sketcher.Constraint("Horizontal", 1),
    Sketcher.Constraint("Vertical", 2),
    Sketcher.Constraint("Horizontal", 3),
    Sketcher.Constraint("Vertical", 4),
    Sketcher.Constraint("Horizontal", 5),
    Sketcher.Constraint("Vertical", 6),
    Sketcher.Constraint("Horizontal", 7),
    Sketcher.Constraint("Vertical", 8),
    Sketcher.Constraint("Horizontal", 9),
    Sketcher.Constraint("Vertical", 10),
    Sketcher.Constraint("Horizontal", 11),
    Sketcher.Constraint("Vertical", 12),
    Sketcher.Constraint("Horizontal", 13),
    Sketcher.Constraint("Vertical", 14),
    Sketcher.Constraint("Horizontal", 15),
    Sketcher.Constraint("Symmetric", 0, 2, 8, 2, -1, 1),
    Sketcher.Constraint("Symmetric", 2, 2, 10, 2, -1, 1),
    Sketcher.Constraint("Symmetric", 4, 2, 12, 2, -1, 1),
    Sketcher.Constraint("Symmetric", 6, 2, 14, 2, -1, 1),
    Sketcher.Constraint("Symmetric", 6, 2, 9, 2, -2),
    Sketcher.Constraint("Horizontal", 5, 2, 10, 2),
    Sketcher.Constraint("DistanceX", 3, 2, 3, 1, 5.0),
    Sketcher.Constraint("DistanceY", 4, 2, 4, 1, 10.0),
    Sketcher.Constraint("DistanceY", 0, 1, 0, 2, 55.28),
    Sketcher.Constraint("DistanceX", 0, 2, -1, 1, 82.5),
    Sketcher.Constraint("DistanceX", 1, 1, 1, 2, 10.415),
])
pocket4 = body.newObject("PartDesign::Pocket", "Pocket003")
pocket4.Profile = sketch13
pocket4.Type = "ThroughAll"
pocket4.Reversed = True

# Sketch on XY plane
sketch14 = body.newObject("Sketcher::SketchObject", "Sketch013")
sketch14.AttachmentSupport = (doc.getObject("XY_Plane"), [""])
sketch14.MapMode = "FlatFace"
sketch14.AttachmentOffset = App.Placement(App.Vector(0, 0, 48), App.Rotation())
sketch14.addGeometry([
    Part.LineSegment(App.Vector(-5, -27.6, 0), App.Vector(-72.1, -27.6, 0)),  # 0
    Part.LineSegment(App.Vector(-72.1, -27.6, 0), App.Vector(-72.1, 27.6, 0)),  # 1
    Part.LineSegment(App.Vector(-72.1, 27.6, 0), App.Vector(-5, 27.6, 0)),  # 2
    Part.LineSegment(App.Vector(-5, 27.6, 0), App.Vector(-5, 26.5, 0)),  # 3
    Part.LineSegment(App.Vector(-5, 26.5, 0), App.Vector(-70.9, 26.5, 0)),  # 4
    Part.LineSegment(App.Vector(-70.9, 26.5, 0), App.Vector(-70.9, -26.5, 0)),  # 5
    Part.LineSegment(App.Vector(-70.9, -26.5, 0), App.Vector(-5, -26.5, 0)),  # 6
    Part.LineSegment(App.Vector(-5, -26.5, 0), App.Vector(-5, -27.6, 0)),  # 7
    Part.LineSegment(App.Vector(72.1, -27.6, 0), App.Vector(5, -27.6, 0)),  # 8
    Part.LineSegment(App.Vector(5, -27.6, 0), App.Vector(5, -26.5, 0)),  # 9
    Part.LineSegment(App.Vector(5, -26.5, 0), App.Vector(70.9, -26.5, 0)),  # 10
    Part.LineSegment(App.Vector(70.9, -26.5, 0), App.Vector(70.9, 26.5, 0)),  # 11
    Part.LineSegment(App.Vector(70.9, 26.5, 0), App.Vector(5, 26.5, 0)),  # 12
    Part.LineSegment(App.Vector(5, 26.5, 0), App.Vector(5, 27.6, 0)),  # 13
    Part.LineSegment(App.Vector(5, 27.6, 0), App.Vector(72.1, 27.6, 0)),  # 14
    Part.LineSegment(App.Vector(72.1, 27.6, 0), App.Vector(72.1, -27.6, 0)),  # 15
], False)
sketch14.addConstraint([
    Sketcher.Constraint("Coincident", 0, 2, 1, 1),
    Sketcher.Constraint("Coincident", 1, 2, 2, 1),
    Sketcher.Constraint("Coincident", 2, 2, 3, 1),
    Sketcher.Constraint("Coincident", 3, 2, 4, 1),
    Sketcher.Constraint("Coincident", 4, 2, 5, 1),
    Sketcher.Constraint("Coincident", 5, 2, 6, 1),
    Sketcher.Constraint("Coincident", 6, 2, 7, 1),
    Sketcher.Constraint("Coincident", 7, 2, 0, 1),
    Sketcher.Constraint("Coincident", 8, 2, 9, 1),
    Sketcher.Constraint("Coincident", 9, 2, 10, 1),
    Sketcher.Constraint("Coincident", 10, 2, 11, 1),
    Sketcher.Constraint("Coincident", 11, 2, 12, 1),
    Sketcher.Constraint("Coincident", 12, 2, 13, 1),
    Sketcher.Constraint("Coincident", 13, 2, 14, 1),
    Sketcher.Constraint("Coincident", 14, 2, 15, 1),
    Sketcher.Constraint("Coincident", 15, 2, 8, 1),
    Sketcher.Constraint("Horizontal", 0),
    Sketcher.Constraint("Vertical", 1),
    Sketcher.Constraint("Horizontal", 2),
    Sketcher.Constraint("Vertical", 3),
    Sketcher.Constraint("Horizontal", 4),
    Sketcher.Constraint("Vertical", 5),
    Sketcher.Constraint("Horizontal", 6),
    Sketcher.Constraint("Vertical", 7),
    Sketcher.Constraint("Horizontal", 8),
    Sketcher.Constraint("Vertical", 9),
    Sketcher.Constraint("Horizontal", 10),
    Sketcher.Constraint("Vertical", 11),
    Sketcher.Constraint("Horizontal", 12),
    Sketcher.Constraint("Vertical", 13),
    Sketcher.Constraint("Horizontal", 14),
    Sketcher.Constraint("Vertical", 15),
    Sketcher.Constraint("Symmetric", 2, 2, 8, 2, -1, 1),
    Sketcher.Constraint("Symmetric", 4, 2, 10, 2, -1, 1),
    Sketcher.Constraint("Symmetric", 6, 2, 12, 2, -1, 1),
    Sketcher.Constraint("Symmetric", 0, 2, 14, 2, -1, 1),
    Sketcher.Constraint("Symmetric", 7, 2, 8, 2, -2),
    Sketcher.Constraint("Horizontal", 6, 2, 9, 2),
    Sketcher.Constraint("DistanceY", 5, 2, 5, 1, 53.0),
    Sketcher.Constraint("DistanceX", 2, 2, -1, 1, 5.0),
    Sketcher.Constraint("DistanceY", 1, 1, 1, 2, 55.28),
    Sketcher.Constraint("DistanceX", 0, 2, 0, 1, 67.085),
    Sketcher.Constraint("DistanceX", 4, 2, 4, 1, 65.945),
])
pad10 = body.newObject("PartDesign::Pad", "Pad009")
pad10.Profile = sketch14
pad10.Length = 43
pad10.Reversed = True

# Sketch on XY plane
sketch15 = body.newObject("Sketcher::SketchObject", "Sketch014")
sketch15.AttachmentSupport = (doc.getObject("XY_Plane"), [""])
sketch15.MapMode = "FlatFace"
sketch15.AttachmentOffset = App.Placement(App.Vector(0, 0, 5), App.Rotation())
sketch15.addGeometry([
    Part.LineSegment(App.Vector(-72.1, -17.6, 0), App.Vector(-70.9, -17.6, 0)),  # 0
    Part.LineSegment(App.Vector(-70.9, -17.6, 0), App.Vector(-70.9, -26.5, 0)),  # 1
    Part.LineSegment(App.Vector(-70.9, -26.5, 0), App.Vector(-62.1, -26.5, 0)),  # 2
    Part.LineSegment(App.Vector(-62.1, -26.5, 0), App.Vector(-62.1, -27.6, 0)),  # 3
    Part.LineSegment(App.Vector(-62.1, -27.6, 0), App.Vector(-72.1, -27.6, 0)),  # 4
    Part.LineSegment(App.Vector(-72.1, -27.6, 0), App.Vector(-72.1, -17.6, 0)),  # 5
], False)
sketch15.addConstraint([
    Sketcher.Constraint("Coincident", 0, 2, 1, 1),
    Sketcher.Constraint("Coincident", 1, 2, 2, 1),
    Sketcher.Constraint("Coincident", 2, 2, 3, 1),
    Sketcher.Constraint("Coincident", 3, 2, 4, 1),
    Sketcher.Constraint("Coincident", 4, 2, 5, 1),
    Sketcher.Constraint("Coincident", 5, 2, 0, 1),
    Sketcher.Constraint("Horizontal", 0),
    Sketcher.Constraint("Vertical", 1),
    Sketcher.Constraint("Horizontal", 2),
    Sketcher.Constraint("Vertical", 3),
    Sketcher.Constraint("Horizontal", 4),
    Sketcher.Constraint("Vertical", 5),
    Sketcher.Constraint("Equal", 2, 1),
    Sketcher.Constraint("Equal", 0, 3),
    Sketcher.Constraint("DistanceX", 4, 2, 4, 1, 10.0),
    Sketcher.Constraint("DistanceX", 0, 1, 0, 2, 1.14),
    Sketcher.Constraint("DistanceY", 1, 2, -1, 1, 26.5),
    Sketcher.Constraint("DistanceX", 0, 2, -1, 1, 70.945),
])
pocket5 = body.newObject("PartDesign::Pocket", "Pocket004")
pocket5.Profile = sketch15
pocket5.Length = 33.5
pocket5.Reversed = True

# Sketch on XZ plane
sketch16 = body.newObject("Sketcher::SketchObject", "Sketch015")
sketch16.AttachmentSupport = (doc.getObject("XZ_Plane"), [""])
sketch16.MapMode = "FlatFace"
sketch16.AttachmentOffset = App.Placement(App.Vector(0, 0, 27.64), App.Rotation())
sketch16.addGeometry([
    Part.LineSegment(App.Vector(5, 38, 0), App.Vector(5, 31, 0)),  # 0
    Part.LineSegment(App.Vector(5, 31, 0), App.Vector(9, 31, 0)),  # 1
    Part.LineSegment(App.Vector(9, 31, 0), App.Vector(9, 38, 0)),  # 2
    Part.LineSegment(App.Vector(9, 38, 0), App.Vector(5, 38, 0)),  # 3
    Part.LineSegment(App.Vector(5, 17, 0), App.Vector(5, 10, 0)),  # 4
    Part.LineSegment(App.Vector(5, 10, 0), App.Vector(9, 10, 0)),  # 5
    Part.LineSegment(App.Vector(9, 10, 0), App.Vector(9, 17, 0)),  # 6
    Part.LineSegment(App.Vector(9, 17, 0), App.Vector(5, 17, 0)),  # 7
    Part.LineSegment(App.Vector(-9, 17, 0), App.Vector(-9, 10, 0)),  # 8
    Part.LineSegment(App.Vector(-9, 10, 0), App.Vector(-5, 10, 0)),  # 9
    Part.LineSegment(App.Vector(-5, 10, 0), App.Vector(-5, 17, 0)),  # 10
    Part.LineSegment(App.Vector(-5, 17, 0), App.Vector(-9, 17, 0)),  # 11
    Part.LineSegment(App.Vector(-9, 38, 0), App.Vector(-9, 31, 0)),  # 12
    Part.LineSegment(App.Vector(-9, 31, 0), App.Vector(-5, 31, 0)),  # 13
    Part.LineSegment(App.Vector(-5, 31, 0), App.Vector(-5, 38, 0)),  # 14
    Part.LineSegment(App.Vector(-5, 38, 0), App.Vector(-9, 38, 0)),  # 15
], False)
sketch16.addConstraint([
    Sketcher.Constraint("Coincident", 0, 2, 1, 1),
    Sketcher.Constraint("Coincident", 1, 2, 2, 1),
    Sketcher.Constraint("Coincident", 2, 2, 3, 1),
    Sketcher.Constraint("Coincident", 3, 2, 0, 1),
    Sketcher.Constraint("Coincident", 4, 2, 5, 1),
    Sketcher.Constraint("Coincident", 5, 2, 6, 1),
    Sketcher.Constraint("Coincident", 6, 2, 7, 1),
    Sketcher.Constraint("Coincident", 7, 2, 4, 1),
    Sketcher.Constraint("Coincident", 8, 2, 9, 1),
    Sketcher.Constraint("Coincident", 9, 2, 10, 1),
    Sketcher.Constraint("Coincident", 10, 2, 11, 1),
    Sketcher.Constraint("Coincident", 11, 2, 8, 1),
    Sketcher.Constraint("Coincident", 12, 2, 13, 1),
    Sketcher.Constraint("Coincident", 13, 2, 14, 1),
    Sketcher.Constraint("Coincident", 14, 2, 15, 1),
    Sketcher.Constraint("Coincident", 15, 2, 12, 1),
    Sketcher.Constraint("Vertical", 0),
    Sketcher.Constraint("Horizontal", 1),
    Sketcher.Constraint("Vertical", 2),
    Sketcher.Constraint("Horizontal", 3),
    Sketcher.Constraint("Vertical", 4),
    Sketcher.Constraint("Horizontal", 5),
    Sketcher.Constraint("Vertical", 6),
    Sketcher.Constraint("Horizontal", 7),
    Sketcher.Constraint("Vertical", 8),
    Sketcher.Constraint("Horizontal", 9),
    Sketcher.Constraint("Vertical", 10),
    Sketcher.Constraint("Horizontal", 11),
    Sketcher.Constraint("Vertical", 12),
    Sketcher.Constraint("Horizontal", 13),
    Sketcher.Constraint("Vertical", 14),
    Sketcher.Constraint("Horizontal", 15),
    Sketcher.Constraint("Symmetric", 5, 2, 8, 2, -2),
    Sketcher.Constraint("Symmetric", 7, 2, 10, 2, -2),
    Sketcher.Constraint("Symmetric", 1, 2, 12, 2, -2),
    Sketcher.Constraint("Symmetric", 3, 2, 14, 2, -2),
    Sketcher.Constraint("Vertical", 3, 2, 4, 2),
    Sketcher.Constraint("Vertical", 2, 2, 5, 2),
    Sketcher.Constraint("Equal", 2, 4),
    Sketcher.Constraint("DistanceX", 1, 1, 1, 2, 4.0),
    Sketcher.Constraint("DistanceY", 0, 2, 0, 1, 7.0),
    Sketcher.Constraint("DistanceX", -1, 1, 0, 2, 5.0),
    Sketcher.Constraint("DistanceY", -1, 1, 0, 2, 31.0),
    Sketcher.Constraint("DistanceY", -1, 1, 4, 2, 10.0),
])
pocket6 = body.newObject("PartDesign::Pocket", "Pocket005")
pocket6.Profile = sketch16
pocket6.Length = 1.14

# Sketch on XZ plane
sketch17 = body.newObject("Sketcher::SketchObject", "Sketch016")
sketch17.AttachmentSupport = (doc.getObject("XZ_Plane"), [""])
sketch17.MapMode = "FlatFace"
sketch17.AttachmentOffset = App.Placement(App.Vector(0, 0, -27.64), App.Rotation())
sketch17.addGeometry([
    Part.LineSegment(App.Vector(5, 24.5, 0), App.Vector(5, 31.5, 0)),  # 0
    Part.LineSegment(App.Vector(5, 31.5, 0), App.Vector(9, 31.5, 0)),  # 1
    Part.LineSegment(App.Vector(9, 31.5, 0), App.Vector(9, 24.5, 0)),  # 2
    Part.LineSegment(App.Vector(9, 24.5, 0), App.Vector(5, 24.5, 0)),  # 3
    Part.LineSegment(App.Vector(-9, 24.5, 0), App.Vector(-9, 31.5, 0)),  # 4
    Part.LineSegment(App.Vector(-9, 31.5, 0), App.Vector(-5, 31.5, 0)),  # 5
    Part.LineSegment(App.Vector(-5, 31.5, 0), App.Vector(-5, 24.5, 0)),  # 6
    Part.LineSegment(App.Vector(-5, 24.5, 0), App.Vector(-9, 24.5, 0)),  # 7
], False)
sketch17.addConstraint([
    Sketcher.Constraint("Coincident", 0, 2, 1, 1),
    Sketcher.Constraint("Coincident", 1, 2, 2, 1),
    Sketcher.Constraint("Coincident", 2, 2, 3, 1),
    Sketcher.Constraint("Coincident", 3, 2, 0, 1),
    Sketcher.Constraint("Coincident", 4, 2, 5, 1),
    Sketcher.Constraint("Coincident", 5, 2, 6, 1),
    Sketcher.Constraint("Coincident", 6, 2, 7, 1),
    Sketcher.Constraint("Coincident", 7, 2, 4, 1),
    Sketcher.Constraint("Vertical", 0),
    Sketcher.Constraint("Horizontal", 1),
    Sketcher.Constraint("Vertical", 2),
    Sketcher.Constraint("Horizontal", 3),
    Sketcher.Constraint("Vertical", 4),
    Sketcher.Constraint("Horizontal", 5),
    Sketcher.Constraint("Vertical", 6),
    Sketcher.Constraint("Horizontal", 7),
    Sketcher.Constraint("Symmetric", 1, 2, 4, 2, -2),
    Sketcher.Constraint("Symmetric", 3, 2, 6, 2, -2),
    Sketcher.Constraint("DistanceX", 1, 1, 1, 2, 4.0),
    Sketcher.Constraint("DistanceY", 0, 1, 0, 2, 7.0),
    Sketcher.Constraint("DistanceX", -1, 1, 0, 2, 5.0),
    Sketcher.Constraint("DistanceY", -1, 1, 0, 2, 31.5),
])
pocket7 = body.newObject("PartDesign::Pocket", "Pocket006")
pocket7.Profile = sketch17
pocket7.Length = 1.14
pocket7.Reversed = True

doc.recompute()
